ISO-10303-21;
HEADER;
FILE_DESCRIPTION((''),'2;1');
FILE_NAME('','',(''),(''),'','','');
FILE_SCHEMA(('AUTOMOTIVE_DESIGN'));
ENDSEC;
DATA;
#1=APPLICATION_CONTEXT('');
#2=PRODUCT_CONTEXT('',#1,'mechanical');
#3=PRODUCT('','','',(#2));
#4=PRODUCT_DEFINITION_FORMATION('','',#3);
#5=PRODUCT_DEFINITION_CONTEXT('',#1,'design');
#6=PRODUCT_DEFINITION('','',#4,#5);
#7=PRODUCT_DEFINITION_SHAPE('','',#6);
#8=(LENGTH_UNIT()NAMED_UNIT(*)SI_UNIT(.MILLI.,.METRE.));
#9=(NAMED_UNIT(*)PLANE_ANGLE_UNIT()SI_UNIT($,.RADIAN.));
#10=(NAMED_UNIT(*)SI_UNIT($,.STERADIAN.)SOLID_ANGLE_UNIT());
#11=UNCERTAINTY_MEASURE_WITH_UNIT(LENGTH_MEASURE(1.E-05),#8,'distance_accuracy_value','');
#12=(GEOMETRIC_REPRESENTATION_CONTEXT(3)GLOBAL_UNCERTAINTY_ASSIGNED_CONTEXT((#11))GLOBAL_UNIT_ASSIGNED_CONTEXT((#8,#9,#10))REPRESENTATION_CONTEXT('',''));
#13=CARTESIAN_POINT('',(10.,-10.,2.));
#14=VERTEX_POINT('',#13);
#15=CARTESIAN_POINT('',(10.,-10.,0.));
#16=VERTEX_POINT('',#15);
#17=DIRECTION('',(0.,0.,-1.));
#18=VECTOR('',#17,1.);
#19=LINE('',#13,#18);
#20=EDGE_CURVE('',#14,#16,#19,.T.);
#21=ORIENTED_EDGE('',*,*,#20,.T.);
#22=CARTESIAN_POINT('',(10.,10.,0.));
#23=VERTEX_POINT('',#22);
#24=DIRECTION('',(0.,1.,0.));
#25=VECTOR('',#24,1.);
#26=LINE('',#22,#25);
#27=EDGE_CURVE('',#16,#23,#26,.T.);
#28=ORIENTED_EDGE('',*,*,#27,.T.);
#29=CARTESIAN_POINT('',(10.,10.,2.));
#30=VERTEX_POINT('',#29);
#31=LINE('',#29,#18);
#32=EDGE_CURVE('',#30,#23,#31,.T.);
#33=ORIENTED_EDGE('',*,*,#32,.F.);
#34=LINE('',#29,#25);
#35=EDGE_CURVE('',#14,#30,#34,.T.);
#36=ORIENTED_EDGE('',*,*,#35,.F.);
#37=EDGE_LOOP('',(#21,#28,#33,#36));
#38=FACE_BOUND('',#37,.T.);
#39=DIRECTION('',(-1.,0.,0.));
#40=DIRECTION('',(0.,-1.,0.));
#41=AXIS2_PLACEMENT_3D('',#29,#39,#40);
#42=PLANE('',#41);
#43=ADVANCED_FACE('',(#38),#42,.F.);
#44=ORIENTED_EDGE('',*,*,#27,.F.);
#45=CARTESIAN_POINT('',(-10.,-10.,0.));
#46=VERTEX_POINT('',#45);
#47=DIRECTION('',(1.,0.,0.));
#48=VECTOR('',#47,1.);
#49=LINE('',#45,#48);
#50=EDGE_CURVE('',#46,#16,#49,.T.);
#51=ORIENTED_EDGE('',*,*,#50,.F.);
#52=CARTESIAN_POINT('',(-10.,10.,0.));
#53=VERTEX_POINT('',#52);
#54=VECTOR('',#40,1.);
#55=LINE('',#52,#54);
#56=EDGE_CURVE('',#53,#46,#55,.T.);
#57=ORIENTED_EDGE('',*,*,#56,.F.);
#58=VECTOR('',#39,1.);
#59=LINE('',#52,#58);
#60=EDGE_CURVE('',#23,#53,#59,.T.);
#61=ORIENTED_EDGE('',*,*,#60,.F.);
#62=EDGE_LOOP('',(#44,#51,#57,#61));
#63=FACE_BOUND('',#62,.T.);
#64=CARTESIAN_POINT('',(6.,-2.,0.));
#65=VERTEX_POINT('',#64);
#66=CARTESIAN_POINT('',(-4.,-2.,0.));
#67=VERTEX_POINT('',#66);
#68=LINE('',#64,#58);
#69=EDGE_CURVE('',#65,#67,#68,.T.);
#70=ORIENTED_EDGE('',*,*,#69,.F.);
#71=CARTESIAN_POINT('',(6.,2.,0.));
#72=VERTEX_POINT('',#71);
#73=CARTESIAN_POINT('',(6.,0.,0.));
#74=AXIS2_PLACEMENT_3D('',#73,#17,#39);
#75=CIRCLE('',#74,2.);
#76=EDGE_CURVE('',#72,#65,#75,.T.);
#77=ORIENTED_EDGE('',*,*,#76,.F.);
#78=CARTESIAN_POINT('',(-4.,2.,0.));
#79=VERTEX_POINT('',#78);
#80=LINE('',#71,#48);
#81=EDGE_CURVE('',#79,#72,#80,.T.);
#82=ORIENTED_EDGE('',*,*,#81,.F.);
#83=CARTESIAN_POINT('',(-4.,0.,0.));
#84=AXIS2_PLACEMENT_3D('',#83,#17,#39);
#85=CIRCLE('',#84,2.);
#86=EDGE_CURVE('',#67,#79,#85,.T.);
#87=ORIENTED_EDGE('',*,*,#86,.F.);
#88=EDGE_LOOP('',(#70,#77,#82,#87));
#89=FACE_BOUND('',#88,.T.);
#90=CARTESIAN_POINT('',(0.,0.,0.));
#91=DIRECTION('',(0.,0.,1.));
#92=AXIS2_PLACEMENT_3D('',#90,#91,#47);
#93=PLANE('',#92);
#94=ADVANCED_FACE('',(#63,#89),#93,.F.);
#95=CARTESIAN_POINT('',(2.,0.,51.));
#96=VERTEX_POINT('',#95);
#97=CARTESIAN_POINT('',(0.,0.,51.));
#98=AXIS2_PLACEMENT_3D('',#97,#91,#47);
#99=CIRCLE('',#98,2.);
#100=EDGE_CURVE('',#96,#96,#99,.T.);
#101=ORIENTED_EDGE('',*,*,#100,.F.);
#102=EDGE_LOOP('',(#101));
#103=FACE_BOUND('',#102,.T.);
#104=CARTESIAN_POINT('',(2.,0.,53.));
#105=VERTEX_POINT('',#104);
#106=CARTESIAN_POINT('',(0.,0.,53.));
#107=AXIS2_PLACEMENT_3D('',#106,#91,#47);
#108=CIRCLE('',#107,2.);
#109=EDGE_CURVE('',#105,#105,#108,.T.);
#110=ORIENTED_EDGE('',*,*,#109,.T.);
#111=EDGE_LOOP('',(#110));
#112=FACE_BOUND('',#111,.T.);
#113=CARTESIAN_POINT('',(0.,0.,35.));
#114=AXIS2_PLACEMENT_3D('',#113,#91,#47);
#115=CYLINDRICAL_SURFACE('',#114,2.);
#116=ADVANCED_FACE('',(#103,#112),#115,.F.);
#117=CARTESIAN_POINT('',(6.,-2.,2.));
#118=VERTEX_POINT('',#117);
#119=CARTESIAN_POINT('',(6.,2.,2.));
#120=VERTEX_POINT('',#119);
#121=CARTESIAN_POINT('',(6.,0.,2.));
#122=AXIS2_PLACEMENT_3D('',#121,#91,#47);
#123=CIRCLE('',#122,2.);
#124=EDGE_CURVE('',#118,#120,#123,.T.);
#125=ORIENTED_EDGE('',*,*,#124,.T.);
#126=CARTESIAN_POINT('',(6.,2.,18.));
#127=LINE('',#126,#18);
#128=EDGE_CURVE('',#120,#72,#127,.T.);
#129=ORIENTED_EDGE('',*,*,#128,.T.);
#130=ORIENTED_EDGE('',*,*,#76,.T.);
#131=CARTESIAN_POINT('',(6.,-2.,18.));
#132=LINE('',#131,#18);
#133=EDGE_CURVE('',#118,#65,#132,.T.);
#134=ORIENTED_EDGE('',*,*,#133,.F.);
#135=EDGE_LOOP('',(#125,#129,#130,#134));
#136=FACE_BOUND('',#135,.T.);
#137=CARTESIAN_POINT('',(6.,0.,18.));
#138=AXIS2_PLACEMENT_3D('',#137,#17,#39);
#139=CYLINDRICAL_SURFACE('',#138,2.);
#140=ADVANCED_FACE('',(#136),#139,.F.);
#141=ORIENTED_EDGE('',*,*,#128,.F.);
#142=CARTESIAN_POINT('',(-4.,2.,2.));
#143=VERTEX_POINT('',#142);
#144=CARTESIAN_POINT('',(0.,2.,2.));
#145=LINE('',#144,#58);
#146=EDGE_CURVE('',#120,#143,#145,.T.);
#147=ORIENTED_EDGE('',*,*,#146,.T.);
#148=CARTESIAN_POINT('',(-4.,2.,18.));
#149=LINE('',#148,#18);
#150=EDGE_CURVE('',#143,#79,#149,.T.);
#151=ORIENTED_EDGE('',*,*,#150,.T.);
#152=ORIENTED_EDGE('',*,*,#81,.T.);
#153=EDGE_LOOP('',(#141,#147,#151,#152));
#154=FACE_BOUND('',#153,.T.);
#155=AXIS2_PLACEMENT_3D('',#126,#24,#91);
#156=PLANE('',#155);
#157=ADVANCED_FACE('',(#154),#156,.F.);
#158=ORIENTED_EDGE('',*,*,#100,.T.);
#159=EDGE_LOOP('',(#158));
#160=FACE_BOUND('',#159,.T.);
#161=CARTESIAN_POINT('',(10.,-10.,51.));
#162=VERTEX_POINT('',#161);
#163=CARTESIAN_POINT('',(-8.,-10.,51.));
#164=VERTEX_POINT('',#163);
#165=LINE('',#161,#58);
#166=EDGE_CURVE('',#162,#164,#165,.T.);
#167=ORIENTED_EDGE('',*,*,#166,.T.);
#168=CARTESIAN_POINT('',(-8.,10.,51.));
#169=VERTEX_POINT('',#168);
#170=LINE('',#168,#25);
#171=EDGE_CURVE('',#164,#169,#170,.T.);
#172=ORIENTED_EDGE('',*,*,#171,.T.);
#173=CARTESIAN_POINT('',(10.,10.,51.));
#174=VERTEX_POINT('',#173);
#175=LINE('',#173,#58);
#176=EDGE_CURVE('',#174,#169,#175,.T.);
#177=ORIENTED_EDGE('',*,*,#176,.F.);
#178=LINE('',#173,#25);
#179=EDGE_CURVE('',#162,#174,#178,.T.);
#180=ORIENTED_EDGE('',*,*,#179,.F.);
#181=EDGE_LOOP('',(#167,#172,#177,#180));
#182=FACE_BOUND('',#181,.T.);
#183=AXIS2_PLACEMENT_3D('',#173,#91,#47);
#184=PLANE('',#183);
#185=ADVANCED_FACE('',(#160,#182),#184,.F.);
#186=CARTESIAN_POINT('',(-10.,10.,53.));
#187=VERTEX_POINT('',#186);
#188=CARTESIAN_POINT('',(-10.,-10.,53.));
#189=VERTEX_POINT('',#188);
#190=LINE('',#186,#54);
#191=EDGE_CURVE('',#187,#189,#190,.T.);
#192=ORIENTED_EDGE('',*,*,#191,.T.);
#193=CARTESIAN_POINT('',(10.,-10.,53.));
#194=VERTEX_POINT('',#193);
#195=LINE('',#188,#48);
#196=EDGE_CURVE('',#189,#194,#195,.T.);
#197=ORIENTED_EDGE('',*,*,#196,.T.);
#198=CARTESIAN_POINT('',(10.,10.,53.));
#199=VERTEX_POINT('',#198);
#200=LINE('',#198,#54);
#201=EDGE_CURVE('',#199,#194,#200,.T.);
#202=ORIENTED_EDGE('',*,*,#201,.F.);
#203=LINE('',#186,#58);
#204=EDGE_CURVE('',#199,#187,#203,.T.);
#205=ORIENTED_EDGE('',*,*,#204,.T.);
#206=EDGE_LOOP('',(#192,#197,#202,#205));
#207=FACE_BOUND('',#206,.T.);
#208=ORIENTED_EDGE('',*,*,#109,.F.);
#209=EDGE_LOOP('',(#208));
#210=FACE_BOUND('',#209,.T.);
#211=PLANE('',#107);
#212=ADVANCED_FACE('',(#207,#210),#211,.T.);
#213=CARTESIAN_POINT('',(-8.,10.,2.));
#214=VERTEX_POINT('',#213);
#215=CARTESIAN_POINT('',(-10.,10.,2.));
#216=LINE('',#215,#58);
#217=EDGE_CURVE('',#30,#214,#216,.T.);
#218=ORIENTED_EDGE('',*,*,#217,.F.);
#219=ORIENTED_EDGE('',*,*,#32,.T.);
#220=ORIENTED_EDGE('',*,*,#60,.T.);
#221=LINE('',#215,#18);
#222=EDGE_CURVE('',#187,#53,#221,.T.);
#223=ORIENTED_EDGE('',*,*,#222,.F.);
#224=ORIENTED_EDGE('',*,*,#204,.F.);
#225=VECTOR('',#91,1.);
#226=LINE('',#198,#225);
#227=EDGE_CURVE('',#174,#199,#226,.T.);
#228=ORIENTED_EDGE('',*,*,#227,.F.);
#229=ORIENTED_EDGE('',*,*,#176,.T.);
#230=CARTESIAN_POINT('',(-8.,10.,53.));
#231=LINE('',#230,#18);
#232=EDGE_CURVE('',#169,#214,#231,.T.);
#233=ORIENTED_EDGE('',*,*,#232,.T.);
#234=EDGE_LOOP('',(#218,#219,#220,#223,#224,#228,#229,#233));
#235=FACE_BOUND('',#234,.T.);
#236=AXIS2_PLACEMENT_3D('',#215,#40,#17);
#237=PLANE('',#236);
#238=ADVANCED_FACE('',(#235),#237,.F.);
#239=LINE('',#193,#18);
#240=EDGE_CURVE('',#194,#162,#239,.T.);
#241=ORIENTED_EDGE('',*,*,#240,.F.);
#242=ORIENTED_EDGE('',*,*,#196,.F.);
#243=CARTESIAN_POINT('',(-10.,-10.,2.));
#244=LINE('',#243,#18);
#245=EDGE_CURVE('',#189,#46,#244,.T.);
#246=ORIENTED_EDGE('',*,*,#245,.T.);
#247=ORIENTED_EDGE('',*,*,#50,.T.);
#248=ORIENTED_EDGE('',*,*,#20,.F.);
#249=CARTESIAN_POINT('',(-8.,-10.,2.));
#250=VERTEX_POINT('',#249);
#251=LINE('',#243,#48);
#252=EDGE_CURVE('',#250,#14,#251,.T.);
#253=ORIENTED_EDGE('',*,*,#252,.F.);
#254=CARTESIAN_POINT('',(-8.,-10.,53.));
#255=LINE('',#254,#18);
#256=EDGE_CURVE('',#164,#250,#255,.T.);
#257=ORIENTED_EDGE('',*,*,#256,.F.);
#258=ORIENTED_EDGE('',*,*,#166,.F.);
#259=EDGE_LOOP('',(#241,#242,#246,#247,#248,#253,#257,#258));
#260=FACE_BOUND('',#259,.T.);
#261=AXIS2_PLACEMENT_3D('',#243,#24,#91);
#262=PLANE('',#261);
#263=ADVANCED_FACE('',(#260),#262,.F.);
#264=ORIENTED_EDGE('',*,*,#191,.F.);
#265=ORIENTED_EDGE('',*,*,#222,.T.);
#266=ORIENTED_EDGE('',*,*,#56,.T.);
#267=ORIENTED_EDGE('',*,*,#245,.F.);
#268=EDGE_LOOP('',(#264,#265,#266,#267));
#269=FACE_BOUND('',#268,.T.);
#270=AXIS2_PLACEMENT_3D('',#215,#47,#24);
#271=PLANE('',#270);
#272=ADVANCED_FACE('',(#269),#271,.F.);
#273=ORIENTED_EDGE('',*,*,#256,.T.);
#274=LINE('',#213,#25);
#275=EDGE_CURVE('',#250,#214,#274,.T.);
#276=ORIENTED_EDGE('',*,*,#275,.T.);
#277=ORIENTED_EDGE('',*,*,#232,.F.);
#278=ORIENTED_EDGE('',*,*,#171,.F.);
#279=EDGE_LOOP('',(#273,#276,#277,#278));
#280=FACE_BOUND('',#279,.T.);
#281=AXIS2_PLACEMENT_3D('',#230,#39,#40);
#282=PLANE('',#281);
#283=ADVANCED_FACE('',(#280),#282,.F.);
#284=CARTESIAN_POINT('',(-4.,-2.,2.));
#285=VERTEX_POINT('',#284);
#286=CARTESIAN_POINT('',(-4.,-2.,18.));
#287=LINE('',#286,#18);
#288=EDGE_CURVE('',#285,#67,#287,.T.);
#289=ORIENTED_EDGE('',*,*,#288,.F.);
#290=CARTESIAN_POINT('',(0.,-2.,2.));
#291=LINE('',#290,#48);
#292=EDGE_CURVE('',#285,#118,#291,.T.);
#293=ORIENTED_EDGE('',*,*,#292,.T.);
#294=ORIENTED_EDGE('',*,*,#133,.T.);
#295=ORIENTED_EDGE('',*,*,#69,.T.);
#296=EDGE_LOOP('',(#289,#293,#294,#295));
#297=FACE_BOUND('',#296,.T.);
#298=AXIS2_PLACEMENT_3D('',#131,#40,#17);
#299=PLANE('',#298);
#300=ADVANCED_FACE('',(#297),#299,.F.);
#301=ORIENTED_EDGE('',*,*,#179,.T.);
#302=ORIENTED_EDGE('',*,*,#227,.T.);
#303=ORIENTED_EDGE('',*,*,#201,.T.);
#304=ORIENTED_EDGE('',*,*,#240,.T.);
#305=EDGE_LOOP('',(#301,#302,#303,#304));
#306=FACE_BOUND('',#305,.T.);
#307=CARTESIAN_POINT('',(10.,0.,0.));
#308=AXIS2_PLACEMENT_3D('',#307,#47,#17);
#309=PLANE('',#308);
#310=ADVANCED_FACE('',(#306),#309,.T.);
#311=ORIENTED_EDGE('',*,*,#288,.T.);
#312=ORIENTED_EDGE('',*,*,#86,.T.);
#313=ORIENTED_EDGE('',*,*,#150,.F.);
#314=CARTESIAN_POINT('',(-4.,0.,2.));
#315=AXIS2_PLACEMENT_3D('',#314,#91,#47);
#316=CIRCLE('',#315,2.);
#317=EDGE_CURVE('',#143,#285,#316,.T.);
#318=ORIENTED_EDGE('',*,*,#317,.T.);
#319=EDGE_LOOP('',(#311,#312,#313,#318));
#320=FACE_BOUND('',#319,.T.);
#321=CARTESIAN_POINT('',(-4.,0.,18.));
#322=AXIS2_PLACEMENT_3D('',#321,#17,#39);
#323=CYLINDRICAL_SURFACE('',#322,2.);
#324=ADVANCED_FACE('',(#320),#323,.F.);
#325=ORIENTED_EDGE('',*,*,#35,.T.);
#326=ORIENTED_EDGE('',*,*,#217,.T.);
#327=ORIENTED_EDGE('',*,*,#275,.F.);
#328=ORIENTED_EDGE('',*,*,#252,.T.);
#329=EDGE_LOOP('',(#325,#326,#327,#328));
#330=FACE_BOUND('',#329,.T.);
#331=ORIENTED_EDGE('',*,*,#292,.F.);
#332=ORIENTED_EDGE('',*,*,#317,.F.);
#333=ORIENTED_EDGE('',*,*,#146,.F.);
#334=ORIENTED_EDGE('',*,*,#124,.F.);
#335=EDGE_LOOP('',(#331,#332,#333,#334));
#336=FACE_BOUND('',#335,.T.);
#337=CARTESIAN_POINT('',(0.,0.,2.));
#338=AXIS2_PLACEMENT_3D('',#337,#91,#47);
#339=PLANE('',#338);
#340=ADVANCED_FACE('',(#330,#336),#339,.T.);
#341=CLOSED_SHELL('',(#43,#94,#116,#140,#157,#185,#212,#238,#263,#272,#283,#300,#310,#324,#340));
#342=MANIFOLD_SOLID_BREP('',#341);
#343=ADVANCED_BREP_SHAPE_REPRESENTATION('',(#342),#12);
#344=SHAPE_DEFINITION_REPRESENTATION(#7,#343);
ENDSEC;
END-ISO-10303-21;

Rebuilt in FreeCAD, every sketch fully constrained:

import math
import FreeCAD as App
import Part
import Sketcher

V = App.Vector
Q = App.Units.Quantity


def add_polygon(sketch, points):
    """Adds a closed chain of lines whose ends are joined by coincident constraints."""
    first, n = sketch.GeometryCount, len(points)
    for a, b in zip(points, points[1:] + points[:1]):
        sketch.addGeometry(Part.LineSegment(App.Vector(*a, 0), App.Vector(*b, 0)), False)
    for i in range(n):
        sketch.addConstraint(Sketcher.Constraint("Coincident", first + i, 2, first + (i + 1) % n, 1))

doc = App.newDocument("Part")
body = doc.addObject("PartDesign::Body", "Body")

sketch1 = doc.addObject("Sketcher::SketchObject", "Sketch")
body.addObject(sketch1)
sketch1.AttachmentSupport = (doc.XY_Plane, [""])
sketch1.MapMode = "FlatFace"
add_polygon(sketch1, [(-10, 10), (-10, -10), (10, -10), (10, 10)])
sketch1.addConstraint([
    Sketcher.Constraint("Vertical", 0),
    Sketcher.Constraint("Horizontal", 1),
    Sketcher.Constraint("Vertical", 2),
    Sketcher.Constraint("Horizontal", 3),
    Sketcher.Constraint("Symmetric", 0, 2, 2, 2, -1, 1),
    Sketcher.Constraint("Equal", 3, 0),
    Sketcher.Constraint("DistanceX", 1, 1, 1, 2, Q("20 mm")),
])
pad1 = doc.addObject("PartDesign::Pad", "Pad")
body.addObject(pad1)
pad1.Profile = sketch1
pad1.Length = 2

sketch2 = doc.addObject("Sketcher::SketchObject", "Sketch001")
body.addObject(sketch2)
sketch2.AttachmentSupport = (doc.XY_Plane, [""])
sketch2.MapMode = "FlatFace"
sketch2.AttachmentOffset = App.Placement(V(0, 0, 2), App.Rotation())
add_polygon(sketch2, [(-10, 10), (-10, -10), (-8, -10), (-8, 10)])
sketch2.addConstraint([
    Sketcher.Constraint("Vertical", 0),
    Sketcher.Constraint("Horizontal", 1),
    Sketcher.Constraint("Vertical", 2),
    Sketcher.Constraint("Horizontal", 3),
    Sketcher.Constraint("DistanceX", 1, 1, 1, 2, Q("2 mm")),
    Sketcher.Constraint("DistanceY", 0, 2, 0, 1, Q("20 mm")),
    Sketcher.Constraint("DistanceX", 0, 2, -1, 1, Q("10 mm")),
    Sketcher.Constraint("DistanceY", 0, 2, -1, 1, Q("10 mm")),
])
pad2 = doc.addObject("PartDesign::Pad", "Pad001")
body.addObject(pad2)
pad2.Profile = sketch2
pad2.Length = 51

sketch3 = doc.addObject("Sketcher::SketchObject", "Sketch002")
body.addObject(sketch3)
sketch3.AttachmentSupport = (doc.YZ_Plane, [""])
sketch3.MapMode = "FlatFace"
sketch3.AttachmentOffset = App.Placement(V(0, 0, -8), App.Rotation())
add_polygon(sketch3, [(10, 53), (-10, 53), (-10, 51), (10, 51)])
sketch3.addConstraint([
    Sketcher.Constraint("Horizontal", 0),
    Sketcher.Constraint("Vertical", 1),
    Sketcher.Constraint("Horizontal", 2),
    Sketcher.Constraint("Vertical", 3),
    Sketcher.Constraint("DistanceX", 0, 2, 0, 1, Q("20 mm")),
    Sketcher.Constraint("DistanceY", 1, 2, 1, 1, Q("2 mm")),
    Sketcher.Constraint("DistanceX", 0, 2, -1, 1, Q("10 mm")),
    Sketcher.Constraint("DistanceY", -1, 1, 0, 2, Q("53 mm")),
])
pad3 = doc.addObject("PartDesign::Pad", "Pad002")
body.addObject(pad3)
pad3.Profile = sketch3
pad3.Length = 18

sketch4 = doc.addObject("Sketcher::SketchObject", "Sketch003")
body.addObject(sketch4)
sketch4.AttachmentSupport = (doc.XY_Plane, [""])
sketch4.MapMode = "FlatFace"
sketch4.AttachmentOffset = App.Placement(V(0, 0, 53), App.Rotation())
sketch4.addGeometry(Part.Circle(V(0, 0, 0), V(0, 0, 1), 2), False)
sketch4.addConstraint([
    Sketcher.Constraint("Coincident", 0, 3, -1, 1),
    Sketcher.Constraint("Diameter", 0, Q("4 mm")),
])
pocket1 = doc.addObject("PartDesign::Pocket", "Pocket")
body.addObject(pocket1)
pocket1.Profile = sketch4
pocket1.Length = 18

sketch5 = doc.addObject("Sketcher::SketchObject", "Sketch004")
body.addObject(sketch5)
sketch5.AttachmentSupport = (doc.XY_Plane, [""])
sketch5.MapMode = "FlatFace"
sketch5.addGeometry([
    Part.LineSegment(V(-4, 2, 0), V(6, 2, 0)),
    Part.ArcOfCircle(Part.Circle(V(6, 0, 0), V(0, 0, 1), 2), math.radians(-90), math.radians(90)),
    Part.LineSegment(V(6, -2, 0), V(-4, -2, 0)),
    Part.ArcOfCircle(Part.Circle(V(-4, 0, 0), V(0, 0, 1), 2), math.radians(90), math.radians(270)),
], False)
sketch5.addConstraint([
    Sketcher.Constraint("Tangent", 0, 2, 1, 2),
    Sketcher.Constraint("Tangent", 1, 1, 2, 1),
    Sketcher.Constraint("Tangent", 2, 2, 3, 2),
    Sketcher.Constraint("Tangent", 3, 1, 0, 1),
    Sketcher.Constraint("Horizontal", 0),
    Sketcher.Constraint("Horizontal", 2),
    Sketcher.Constraint("PointOnObject", 1, 3, -1),
    Sketcher.Constraint("Radius", 1, Q("2 mm")),
    Sketcher.Constraint("DistanceX", 0, 1, 0, 2, Q("10 mm")),
    Sketcher.Constraint("DistanceX", -1, 1, 1, 3, Q("6 mm")),
])
pocket2 = doc.addObject("PartDesign::Pocket", "Pocket001")
body.addObject(pocket2)
pocket2.Profile = sketch5
pocket2.Length = 18
pocket2.Reversed = True

doc.recompute()
